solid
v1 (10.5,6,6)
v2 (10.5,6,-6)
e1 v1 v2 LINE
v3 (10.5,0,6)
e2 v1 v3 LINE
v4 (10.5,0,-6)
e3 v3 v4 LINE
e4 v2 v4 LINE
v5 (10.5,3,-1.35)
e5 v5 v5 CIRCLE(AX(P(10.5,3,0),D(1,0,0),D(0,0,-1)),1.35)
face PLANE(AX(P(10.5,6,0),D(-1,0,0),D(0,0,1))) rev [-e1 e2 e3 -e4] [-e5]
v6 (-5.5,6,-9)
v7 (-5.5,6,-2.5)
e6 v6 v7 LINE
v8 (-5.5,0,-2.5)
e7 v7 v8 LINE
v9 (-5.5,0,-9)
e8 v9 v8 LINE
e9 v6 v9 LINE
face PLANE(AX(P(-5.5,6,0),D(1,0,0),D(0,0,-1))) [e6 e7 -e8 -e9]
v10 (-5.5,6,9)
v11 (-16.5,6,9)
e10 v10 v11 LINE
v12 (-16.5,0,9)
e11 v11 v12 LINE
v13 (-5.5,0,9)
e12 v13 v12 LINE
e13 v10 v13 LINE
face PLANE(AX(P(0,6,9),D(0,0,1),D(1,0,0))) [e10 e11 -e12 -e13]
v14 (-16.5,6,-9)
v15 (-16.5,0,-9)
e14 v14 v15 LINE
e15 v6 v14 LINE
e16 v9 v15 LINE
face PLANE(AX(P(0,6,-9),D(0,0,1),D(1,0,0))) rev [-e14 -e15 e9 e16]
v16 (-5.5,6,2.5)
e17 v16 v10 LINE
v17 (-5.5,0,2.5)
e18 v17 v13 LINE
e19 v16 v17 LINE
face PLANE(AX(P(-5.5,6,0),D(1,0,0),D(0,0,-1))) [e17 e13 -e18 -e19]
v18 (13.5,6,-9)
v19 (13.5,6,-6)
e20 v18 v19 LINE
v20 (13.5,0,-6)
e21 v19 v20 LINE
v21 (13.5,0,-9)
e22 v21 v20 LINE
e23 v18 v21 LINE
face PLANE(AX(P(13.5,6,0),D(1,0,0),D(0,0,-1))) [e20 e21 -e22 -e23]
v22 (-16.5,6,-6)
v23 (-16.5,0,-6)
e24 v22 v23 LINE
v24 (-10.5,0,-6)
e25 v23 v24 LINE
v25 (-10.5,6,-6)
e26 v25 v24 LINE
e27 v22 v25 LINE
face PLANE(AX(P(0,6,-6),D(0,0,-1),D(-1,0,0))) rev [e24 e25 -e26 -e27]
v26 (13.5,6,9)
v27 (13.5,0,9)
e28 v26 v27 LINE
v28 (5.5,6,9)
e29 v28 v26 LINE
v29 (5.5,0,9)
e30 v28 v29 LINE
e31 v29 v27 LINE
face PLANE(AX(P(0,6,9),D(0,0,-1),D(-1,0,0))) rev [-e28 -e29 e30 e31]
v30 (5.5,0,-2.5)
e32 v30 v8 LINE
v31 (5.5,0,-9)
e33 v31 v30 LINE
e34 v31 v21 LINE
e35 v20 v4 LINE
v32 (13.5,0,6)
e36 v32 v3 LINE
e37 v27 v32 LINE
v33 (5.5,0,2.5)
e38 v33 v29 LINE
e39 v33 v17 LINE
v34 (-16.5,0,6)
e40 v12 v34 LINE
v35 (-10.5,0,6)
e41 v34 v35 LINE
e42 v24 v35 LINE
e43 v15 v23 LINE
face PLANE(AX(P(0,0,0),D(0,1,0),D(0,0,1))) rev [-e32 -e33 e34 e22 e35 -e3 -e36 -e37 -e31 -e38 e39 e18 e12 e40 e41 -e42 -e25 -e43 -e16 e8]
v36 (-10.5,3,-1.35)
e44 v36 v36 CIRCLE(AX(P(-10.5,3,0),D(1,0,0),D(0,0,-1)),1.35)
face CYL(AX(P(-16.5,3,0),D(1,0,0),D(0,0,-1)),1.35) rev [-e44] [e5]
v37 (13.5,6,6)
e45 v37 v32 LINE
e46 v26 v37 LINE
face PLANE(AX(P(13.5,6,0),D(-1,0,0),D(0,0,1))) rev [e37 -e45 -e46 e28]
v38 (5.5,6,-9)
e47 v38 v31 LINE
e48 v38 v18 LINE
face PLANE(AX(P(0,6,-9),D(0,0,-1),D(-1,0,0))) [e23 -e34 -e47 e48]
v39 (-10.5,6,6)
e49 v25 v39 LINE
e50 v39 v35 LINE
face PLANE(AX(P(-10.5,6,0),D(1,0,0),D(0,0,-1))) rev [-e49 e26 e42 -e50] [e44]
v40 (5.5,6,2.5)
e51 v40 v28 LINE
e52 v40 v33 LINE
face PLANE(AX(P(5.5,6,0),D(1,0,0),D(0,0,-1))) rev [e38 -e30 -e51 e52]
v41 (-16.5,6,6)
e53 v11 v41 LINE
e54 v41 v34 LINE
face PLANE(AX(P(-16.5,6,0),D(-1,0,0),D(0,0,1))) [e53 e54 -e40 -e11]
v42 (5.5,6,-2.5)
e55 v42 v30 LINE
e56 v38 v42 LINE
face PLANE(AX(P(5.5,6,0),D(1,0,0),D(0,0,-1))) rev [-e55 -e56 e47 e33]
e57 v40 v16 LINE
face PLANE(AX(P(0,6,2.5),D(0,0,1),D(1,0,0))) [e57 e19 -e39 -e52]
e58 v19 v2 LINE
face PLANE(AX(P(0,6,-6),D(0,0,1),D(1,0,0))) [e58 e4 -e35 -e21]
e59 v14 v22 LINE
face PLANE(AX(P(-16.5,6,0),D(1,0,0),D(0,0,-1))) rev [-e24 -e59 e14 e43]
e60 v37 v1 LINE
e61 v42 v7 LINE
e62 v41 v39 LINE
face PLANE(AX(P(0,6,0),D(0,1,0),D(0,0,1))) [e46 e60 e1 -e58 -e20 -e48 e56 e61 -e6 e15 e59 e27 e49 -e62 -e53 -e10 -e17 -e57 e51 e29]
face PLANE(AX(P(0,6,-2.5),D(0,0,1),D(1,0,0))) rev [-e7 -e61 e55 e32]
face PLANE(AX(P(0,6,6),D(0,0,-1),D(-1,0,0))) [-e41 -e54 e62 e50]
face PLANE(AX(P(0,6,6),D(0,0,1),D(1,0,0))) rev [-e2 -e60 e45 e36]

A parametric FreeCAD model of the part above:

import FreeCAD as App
import Part
import Sketcher
Q = App.Units.Quantity

doc = App.newDocument("Part")
body = doc.addObject("PartDesign::Body", "Body")

# Sketch on XZ plane
sketch1 = doc.addObject("Sketcher::SketchObject", "Sketch")
body.addObject(sketch1)
sketch1.AttachmentSupport = (doc.XZ_Plane, [""])
sketch1.MapMode = "FlatFace"
sketch1.addGeometry(Part.LineSegment(App.Vector(-5.5, -2.5, 0), App.Vector(-5.5, -9, 0)), False)
sketch1.addGeometry(Part.LineSegment(App.Vector(-5.5, -9, 0), App.Vector(-16.5, -9, 0)), False)
sketch1.addGeometry(Part.LineSegment(App.Vector(-16.5, -9, 0), App.Vector(-16.5, -6, 0)), False)
sketch1.addGeometry(Part.LineSegment(App.Vector(-16.5, -6, 0), App.Vector(-10.5, -6, 0)), False)
sketch1.addGeometry(Part.LineSegment(App.Vector(-10.5, -6, 0), App.Vector(-10.5, 6, 0)), False)
sketch1.addGeometry(Part.LineSegment(App.Vector(-10.5, 6, 0), App.Vector(-16.5, 6, 0)), False)
sketch1.addGeometry(Part.LineSegment(App.Vector(-16.5, 6, 0), App.Vector(-16.5, 9, 0)), False)
sketch1.addGeometry(Part.LineSegment(App.Vector(-16.5, 9, 0), App.Vector(-5.5, 9, 0)), False)
sketch1.addGeometry(Part.LineSegment(App.Vector(-5.5, 9, 0), App.Vector(-5.5, 2.5, 0)), False)
sketch1.addGeometry(Part.LineSegment(App.Vector(-5.5, 2.5, 0), App.Vector(5.5, 2.5, 0)), False)
sketch1.addGeometry(Part.LineSegment(App.Vector(5.5, 2.5, 0), App.Vector(5.5, 9, 0)), False)
sketch1.addGeometry(Part.LineSegment(App.Vector(5.5, 9, 0), App.Vector(13.5, 9, 0)), False)
sketch1.addGeometry(Part.LineSegment(App.Vector(13.5, 9, 0), App.Vector(13.5, 6, 0)), False)
sketch1.addGeometry(Part.LineSegment(App.Vector(13.5, 6, 0), App.Vector(10.5, 6, 0)), False)
sketch1.addGeometry(Part.LineSegment(App.Vector(10.5, 6, 0), App.Vector(10.5, -6, 0)), False)
sketch1.addGeometry(Part.LineSegment(App.Vector(10.5, -6, 0), App.Vector(13.5, -6, 0)), False)
sketch1.addGeometry(Part.LineSegment(App.Vector(13.5, -6, 0), App.Vector(13.5, -9, 0)), False)
sketch1.addGeometry(Part.LineSegment(App.Vector(13.5, -9, 0), App.Vector(5.5, -9, 0)), False)
sketch1.addGeometry(Part.LineSegment(App.Vector(5.5, -9, 0), App.Vector(5.5, -2.5, 0)), False)
sketch1.addGeometry(Part.LineSegment(App.Vector(5.5, -2.5, 0), App.Vector(-5.5, -2.5, 0)), False)
sketch1.addConstraint(Sketcher.Constraint("Coincident", 0, 2, 1, 1))
sketch1.addConstraint(Sketcher.Constraint("Coincident", 1, 2, 2, 1))
sketch1.addConstraint(Sketcher.Constraint("Coincident", 2, 2, 3, 1))
sketch1.addConstraint(Sketcher.Constraint("Coincident", 3, 2, 4, 1))
sketch1.addConstraint(Sketcher.Constraint("Coincident", 4, 2, 5, 1))
sketch1.addConstraint(Sketcher.Constraint("Coincident", 5, 2, 6, 1))
sketch1.addConstraint(Sketcher.Constraint("Coincident", 6, 2, 7, 1))
sketch1.addConstraint(Sketcher.Constraint("Coincident", 7, 2, 8, 1))
sketch1.addConstraint(Sketcher.Constraint("Coincident", 8, 2, 9, 1))
sketch1.addConstraint(Sketcher.Constraint("Coincident", 9, 2, 10, 1))
sketch1.addConstraint(Sketcher.Constraint("Coincident", 10, 2, 11, 1))
sketch1.addConstraint(Sketcher.Constraint("Coincident", 11, 2, 12, 1))
sketch1.addConstraint(Sketcher.Constraint("Coincident", 12, 2, 13, 1))
sketch1.addConstraint(Sketcher.Constraint("Coincident", 13, 2, 14, 1))
sketch1.addConstraint(Sketcher.Constraint("Coincident", 14, 2, 15, 1))
sketch1.addConstraint(Sketcher.Constraint("Coincident", 15, 2, 16, 1))
sketch1.addConstraint(Sketcher.Constraint("Coincident", 16, 2, 17, 1))
sketch1.addConstraint(Sketcher.Constraint("Coincident", 17, 2, 18, 1))
sketch1.addConstraint(Sketcher.Constraint("Coincident", 18, 2, 19, 1))
sketch1.addConstraint(Sketcher.Constraint("Coincident", 19, 2, 0, 1))
sketch1.addConstraint(Sketcher.Constraint("Vertical", 0))
sketch1.addConstraint(Sketcher.Constraint("Horizontal", 1))
sketch1.addConstraint(Sketcher.Constraint("Vertical", 2))
sketch1.addConstraint(Sketcher.Constraint("Horizontal", 3))
sketch1.addConstraint(Sketcher.Constraint("Vertical", 4))
sketch1.addConstraint(Sketcher.Constraint("Horizontal", 5))
sketch1.addConstraint(Sketcher.Constraint("Vertical", 6))
sketch1.addConstraint(Sketcher.Constraint("Horizontal", 7))
sketch1.addConstraint(Sketcher.Constraint("Vertical", 8))
sketch1.addConstraint(Sketcher.Constraint("Horizontal", 9))
sketch1.addConstraint(Sketcher.Constraint("Vertical", 10))
sketch1.addConstraint(Sketcher.Constraint("Horizontal", 11))
sketch1.addConstraint(Sketcher.Constraint("Vertical", 12))
sketch1.addConstraint(Sketcher.Constraint("Horizontal", 13))
sketch1.addConstraint(Sketcher.Constraint("Vertical", 14))
sketch1.addConstraint(Sketcher.Constraint("Horizontal", 15))
sketch1.addConstraint(Sketcher.Constraint("Vertical", 16))
sketch1.addConstraint(Sketcher.Constraint("Horizontal", 17))
sketch1.addConstraint(Sketcher.Constraint("Vertical", 18))
sketch1.addConstraint(Sketcher.Constraint("Horizontal", 19))
sketch1.addConstraint(Sketcher.Constraint("Symmetric", 0, 2, 10, 2, -1, 1))
sketch1.addConstraint(Sketcher.Constraint("Symmetric", 3, 2, 13, 2, -1, 1))
sketch1.addConstraint(Sketcher.Constraint("Symmetric", 7, 2, 17, 2, -1, 1))
sketch1.addConstraint(Sketcher.Constraint("Symmetric", 7, 2, 10, 2, -2))
sketch1.addConstraint(Sketcher.Constraint("Symmetric", 2, 2, 5, 2, -1))
sketch1.addConstraint(Sketcher.Constraint("Symmetric", 12, 2, 15, 2, -1))
sketch1.addConstraint(Sketcher.Constraint("Equal", 7, 9))
sketch1.addConstraint(Sketcher.Constraint("Equal", 15, 2))
sketch1.addConstraint(Sketcher.Constraint("Equal", 0, 8))
sketch1.addConstraint(Sketcher.Constraint("DistanceX", 1, 2, 1, 1, Q("11 mm")))
sketch1.addConstraint(Sketcher.Constraint("DistanceX", 3, 1, 3, 2, Q("6 mm")))
sketch1.addConstraint(Sketcher.Constraint("DistanceX", 11, 1, 11, 2, Q("8 mm")))
sketch1.addConstraint(Sketcher.Constraint("DistanceY", 4, 1, 4, 2, Q("12 mm")))
sketch1.addConstraint(Sketcher.Constraint("DistanceY", 0, 2, 0, 1, Q("6.5 mm")))
pad1 = doc.addObject("PartDesign::Pad", "Pad")
body.addObject(pad1)
pad1.Profile = sketch1
pad1.Length = 6
pad1.Reversed = True

# Sketch on YZ plane
sketch2 = doc.addObject("Sketcher::SketchObject", "Sketch001")
body.addObject(sketch2)
sketch2.AttachmentSupport = (doc.YZ_Plane, [""])
sketch2.MapMode = "FlatFace"
sketch2.AttachmentOffset = App.Placement(App.Vector(0, 0, 10.5), App.Rotation())
sketch2.addGeometry(Part.Circle(App.Vector(3, 0, 0), App.Vector(0, 0, 1), 1.35), False)
sketch2.addConstraint(Sketcher.Constraint("PointOnObject", 0, 3, -1))
sketch2.addConstraint(Sketcher.Constraint("Diameter", 0, Q("2.7 mm")))
sketch2.addConstraint(Sketcher.Constraint("DistanceX", -1, 1, 0, 3, Q("3 mm")))
pocket1 = doc.addObject("PartDesign::Pocket", "Pocket")
body.addObject(pocket1)
pocket1.Profile = sketch2
pocket1.Type = "ThroughAll"

doc.recompute()
